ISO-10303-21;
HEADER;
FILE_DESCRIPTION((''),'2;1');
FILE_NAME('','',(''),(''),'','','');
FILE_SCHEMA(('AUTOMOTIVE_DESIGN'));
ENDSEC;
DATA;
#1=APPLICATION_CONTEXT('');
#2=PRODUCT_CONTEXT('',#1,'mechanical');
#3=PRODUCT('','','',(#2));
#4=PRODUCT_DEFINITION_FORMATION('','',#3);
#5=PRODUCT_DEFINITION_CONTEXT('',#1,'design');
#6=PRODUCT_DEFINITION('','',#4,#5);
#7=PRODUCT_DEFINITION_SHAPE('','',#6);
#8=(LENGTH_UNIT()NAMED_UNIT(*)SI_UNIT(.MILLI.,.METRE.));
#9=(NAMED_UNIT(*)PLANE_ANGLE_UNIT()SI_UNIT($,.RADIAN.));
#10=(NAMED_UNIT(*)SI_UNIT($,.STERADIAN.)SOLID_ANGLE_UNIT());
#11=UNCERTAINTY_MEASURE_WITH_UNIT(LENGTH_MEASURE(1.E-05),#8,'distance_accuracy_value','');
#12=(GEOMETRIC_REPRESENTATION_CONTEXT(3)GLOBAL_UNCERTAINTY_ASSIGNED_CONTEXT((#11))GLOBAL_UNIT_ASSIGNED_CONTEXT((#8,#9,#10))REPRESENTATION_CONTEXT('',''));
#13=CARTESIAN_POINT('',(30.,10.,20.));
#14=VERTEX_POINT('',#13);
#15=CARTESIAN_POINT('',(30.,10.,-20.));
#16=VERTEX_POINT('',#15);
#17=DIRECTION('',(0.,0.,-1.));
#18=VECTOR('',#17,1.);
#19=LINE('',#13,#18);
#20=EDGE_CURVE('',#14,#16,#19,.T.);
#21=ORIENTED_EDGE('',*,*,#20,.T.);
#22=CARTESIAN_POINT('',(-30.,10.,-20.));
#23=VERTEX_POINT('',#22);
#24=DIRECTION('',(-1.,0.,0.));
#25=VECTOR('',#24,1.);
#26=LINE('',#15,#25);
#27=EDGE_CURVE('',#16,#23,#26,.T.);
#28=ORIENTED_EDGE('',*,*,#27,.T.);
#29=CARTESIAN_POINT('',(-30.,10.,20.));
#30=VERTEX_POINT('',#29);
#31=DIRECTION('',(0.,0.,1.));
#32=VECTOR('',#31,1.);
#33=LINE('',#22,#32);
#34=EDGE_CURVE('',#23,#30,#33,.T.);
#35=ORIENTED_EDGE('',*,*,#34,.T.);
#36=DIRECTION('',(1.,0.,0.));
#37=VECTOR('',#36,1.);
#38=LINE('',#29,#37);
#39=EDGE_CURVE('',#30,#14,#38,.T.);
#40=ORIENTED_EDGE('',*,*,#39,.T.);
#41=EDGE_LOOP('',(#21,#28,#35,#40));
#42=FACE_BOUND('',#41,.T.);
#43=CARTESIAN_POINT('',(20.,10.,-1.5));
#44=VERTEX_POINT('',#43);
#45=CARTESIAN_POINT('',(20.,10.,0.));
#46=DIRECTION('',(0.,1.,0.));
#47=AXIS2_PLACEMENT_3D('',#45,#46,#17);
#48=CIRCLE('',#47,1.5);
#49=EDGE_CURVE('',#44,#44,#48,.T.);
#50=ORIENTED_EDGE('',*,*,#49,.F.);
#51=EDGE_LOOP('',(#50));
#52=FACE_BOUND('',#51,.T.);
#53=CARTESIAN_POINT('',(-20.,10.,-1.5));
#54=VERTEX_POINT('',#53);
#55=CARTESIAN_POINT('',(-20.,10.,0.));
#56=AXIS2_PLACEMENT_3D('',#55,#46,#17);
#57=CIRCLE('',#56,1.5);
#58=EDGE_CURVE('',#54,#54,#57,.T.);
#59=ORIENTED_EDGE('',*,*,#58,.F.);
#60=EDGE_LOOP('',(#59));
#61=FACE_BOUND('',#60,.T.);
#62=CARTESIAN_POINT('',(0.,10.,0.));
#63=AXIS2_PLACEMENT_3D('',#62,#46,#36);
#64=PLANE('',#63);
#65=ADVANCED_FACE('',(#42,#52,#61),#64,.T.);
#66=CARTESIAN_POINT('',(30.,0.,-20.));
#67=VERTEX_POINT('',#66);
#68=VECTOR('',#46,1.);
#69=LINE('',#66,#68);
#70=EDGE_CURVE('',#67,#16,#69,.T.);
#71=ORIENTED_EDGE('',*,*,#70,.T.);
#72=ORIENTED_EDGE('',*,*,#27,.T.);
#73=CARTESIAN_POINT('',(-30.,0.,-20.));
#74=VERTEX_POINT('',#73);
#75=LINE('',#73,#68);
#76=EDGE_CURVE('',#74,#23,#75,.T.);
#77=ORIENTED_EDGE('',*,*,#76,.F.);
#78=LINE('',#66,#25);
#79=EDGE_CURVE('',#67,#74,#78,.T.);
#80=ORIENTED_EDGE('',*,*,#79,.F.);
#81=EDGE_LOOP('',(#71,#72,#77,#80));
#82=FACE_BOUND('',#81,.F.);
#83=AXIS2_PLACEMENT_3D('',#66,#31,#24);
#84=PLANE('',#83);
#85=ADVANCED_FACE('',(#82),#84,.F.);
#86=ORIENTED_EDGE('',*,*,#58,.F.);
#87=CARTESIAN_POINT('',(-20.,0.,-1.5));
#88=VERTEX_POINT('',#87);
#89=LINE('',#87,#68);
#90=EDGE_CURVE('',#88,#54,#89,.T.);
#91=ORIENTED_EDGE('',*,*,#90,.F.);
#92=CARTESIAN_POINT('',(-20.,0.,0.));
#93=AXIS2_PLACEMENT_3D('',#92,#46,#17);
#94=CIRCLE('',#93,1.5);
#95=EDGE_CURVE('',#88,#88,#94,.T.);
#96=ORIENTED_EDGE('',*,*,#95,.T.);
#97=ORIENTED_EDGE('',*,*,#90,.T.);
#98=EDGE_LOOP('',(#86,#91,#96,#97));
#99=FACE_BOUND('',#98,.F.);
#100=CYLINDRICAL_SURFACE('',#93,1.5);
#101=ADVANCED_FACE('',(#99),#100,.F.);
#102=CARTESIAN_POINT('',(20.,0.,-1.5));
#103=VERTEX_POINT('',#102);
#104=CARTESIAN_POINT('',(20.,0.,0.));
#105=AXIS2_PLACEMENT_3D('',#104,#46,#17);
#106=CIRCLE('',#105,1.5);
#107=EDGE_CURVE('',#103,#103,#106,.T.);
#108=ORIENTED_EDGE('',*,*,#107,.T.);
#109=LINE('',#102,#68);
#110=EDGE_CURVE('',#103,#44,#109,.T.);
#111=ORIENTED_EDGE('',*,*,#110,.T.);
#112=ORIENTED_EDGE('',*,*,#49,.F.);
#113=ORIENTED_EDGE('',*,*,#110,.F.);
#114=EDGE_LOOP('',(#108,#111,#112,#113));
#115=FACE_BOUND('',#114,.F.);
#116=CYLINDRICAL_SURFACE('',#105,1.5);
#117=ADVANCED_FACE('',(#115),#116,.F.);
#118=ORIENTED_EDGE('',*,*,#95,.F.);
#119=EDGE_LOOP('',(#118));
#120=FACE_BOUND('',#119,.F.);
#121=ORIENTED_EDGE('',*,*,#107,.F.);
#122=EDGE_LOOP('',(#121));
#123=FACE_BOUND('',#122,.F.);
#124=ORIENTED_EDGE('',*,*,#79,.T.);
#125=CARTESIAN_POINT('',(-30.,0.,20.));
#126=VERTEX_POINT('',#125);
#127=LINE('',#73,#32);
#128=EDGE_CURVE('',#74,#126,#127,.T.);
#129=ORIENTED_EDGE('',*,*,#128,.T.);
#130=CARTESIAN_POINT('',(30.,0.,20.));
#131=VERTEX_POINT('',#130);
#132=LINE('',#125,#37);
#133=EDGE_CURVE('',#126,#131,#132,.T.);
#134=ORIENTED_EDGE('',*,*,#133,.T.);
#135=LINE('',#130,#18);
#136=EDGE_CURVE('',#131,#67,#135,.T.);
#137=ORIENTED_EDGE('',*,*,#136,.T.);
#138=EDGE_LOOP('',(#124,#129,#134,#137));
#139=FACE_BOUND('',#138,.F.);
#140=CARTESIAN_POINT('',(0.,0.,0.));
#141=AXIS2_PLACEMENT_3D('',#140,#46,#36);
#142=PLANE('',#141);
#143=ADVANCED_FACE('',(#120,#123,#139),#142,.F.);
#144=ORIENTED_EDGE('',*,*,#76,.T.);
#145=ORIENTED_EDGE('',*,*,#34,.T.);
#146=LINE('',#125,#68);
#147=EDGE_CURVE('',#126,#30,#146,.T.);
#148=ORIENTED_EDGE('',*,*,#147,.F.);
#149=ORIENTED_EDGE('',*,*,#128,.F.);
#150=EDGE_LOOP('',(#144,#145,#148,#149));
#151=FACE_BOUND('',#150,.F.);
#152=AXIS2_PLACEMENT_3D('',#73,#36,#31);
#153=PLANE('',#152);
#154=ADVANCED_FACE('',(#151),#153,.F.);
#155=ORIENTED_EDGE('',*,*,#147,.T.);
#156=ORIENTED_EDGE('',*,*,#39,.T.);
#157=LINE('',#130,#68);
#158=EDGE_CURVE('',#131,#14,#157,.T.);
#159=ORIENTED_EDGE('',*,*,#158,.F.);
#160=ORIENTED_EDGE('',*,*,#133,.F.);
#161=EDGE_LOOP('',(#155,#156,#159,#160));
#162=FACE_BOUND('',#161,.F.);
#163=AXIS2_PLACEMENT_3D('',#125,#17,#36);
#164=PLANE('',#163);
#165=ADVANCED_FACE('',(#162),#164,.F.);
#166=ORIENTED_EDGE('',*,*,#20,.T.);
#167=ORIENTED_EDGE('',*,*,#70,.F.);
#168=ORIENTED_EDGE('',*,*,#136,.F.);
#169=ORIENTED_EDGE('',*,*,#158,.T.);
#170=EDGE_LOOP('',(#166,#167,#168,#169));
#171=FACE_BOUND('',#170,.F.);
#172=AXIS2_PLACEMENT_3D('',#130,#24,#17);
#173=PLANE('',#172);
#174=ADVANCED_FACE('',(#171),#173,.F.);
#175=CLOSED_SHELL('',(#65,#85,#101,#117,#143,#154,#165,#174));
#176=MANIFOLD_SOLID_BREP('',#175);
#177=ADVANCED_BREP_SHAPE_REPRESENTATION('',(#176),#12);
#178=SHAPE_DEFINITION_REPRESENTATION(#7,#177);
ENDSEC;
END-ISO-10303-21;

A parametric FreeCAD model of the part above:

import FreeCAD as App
import Part
import Sketcher

V = App.Vector
Q = App.Units.Quantity

doc = App.newDocument("Part")
body = doc.addObject("PartDesign::Body", "Body")

sketch1 = body.newObject("Sketcher::SketchObject", "Sketch")
sketch1.AttachmentSupport = (doc.getObject("XZ_Plane"), [""])
sketch1.MapMode = "FlatFace"
sketch1.addGeometry([
    Part.LineSegment(V(30, 20, 0), V(30, -20, 0)),
    Part.LineSegment(V(30, -20, 0), V(-30, -20, 0)),
    Part.LineSegment(V(-30, -20, 0), V(-30, 20, 0)),
    Part.LineSegment(V(-30, 20, 0), V(30, 20, 0)),
], False)
sketch1.addConstraint([
    Sketcher.Constraint("Coincident", 0, 2, 1, 1),
    Sketcher.Constraint("Coincident", 1, 2, 2, 1),
    Sketcher.Constraint("Coincident", 2, 2, 3, 1),
    Sketcher.Constraint("Coincident", 3, 2, 0, 1),
    Sketcher.Constraint("Vertical", 0),
    Sketcher.Constraint("Horizontal", 1),
    Sketcher.Constraint("Vertical", 2),
    Sketcher.Constraint("Horizontal", 3),
    Sketcher.Constraint("Symmetric", 0, 2, 2, 2, -1, 1),
    Sketcher.Constraint("DistanceX", 1, 2, 1, 1, Q("60 mm")),
    Sketcher.Constraint("DistanceY", 0, 2, 0, 1, Q("40 mm")),
])
pad1 = body.newObject("PartDesign::Pad", "Pad")
pad1.Profile = sketch1
pad1.Length = 10
pad1.Reversed = True

sketch2 = body.newObject("Sketcher::SketchObject", "Sketch001")
sketch2.AttachmentSupport = (doc.getObject("XZ_Plane"), [""])
sketch2.MapMode = "FlatFace"
sketch2.addGeometry([
    Part.Circle(V(-20, 0, 0), V(0, 0, 1), 1.5),
    Part.Circle(V(20, 0, 0), V(0, 0, 1), 1.5),
], False)
sketch2.addConstraint([
    Sketcher.Constraint("Equal", 0, 1),
    Sketcher.Constraint("Symmetric", 0, 3, 1, 3, -1, 1),
    Sketcher.Constraint("PointOnObject", 0, 3, -1),
    Sketcher.Constraint("Diameter", 0, Q("3 mm")),
    Sketcher.Constraint("DistanceX", 0, 3, -1, 1, Q("20 mm")),
])
doc.recompute()
hole = body.newObject("PartDesign::Hole", "Hole")
hole.Profile = sketch2
hole.ThreadType = "None"
hole.Diameter = 3
hole.DepthType = "Dimension"
hole.Depth = 12
hole.DrillPoint = "Angled"
hole.DrillPointAngle = 118

doc.recompute()
